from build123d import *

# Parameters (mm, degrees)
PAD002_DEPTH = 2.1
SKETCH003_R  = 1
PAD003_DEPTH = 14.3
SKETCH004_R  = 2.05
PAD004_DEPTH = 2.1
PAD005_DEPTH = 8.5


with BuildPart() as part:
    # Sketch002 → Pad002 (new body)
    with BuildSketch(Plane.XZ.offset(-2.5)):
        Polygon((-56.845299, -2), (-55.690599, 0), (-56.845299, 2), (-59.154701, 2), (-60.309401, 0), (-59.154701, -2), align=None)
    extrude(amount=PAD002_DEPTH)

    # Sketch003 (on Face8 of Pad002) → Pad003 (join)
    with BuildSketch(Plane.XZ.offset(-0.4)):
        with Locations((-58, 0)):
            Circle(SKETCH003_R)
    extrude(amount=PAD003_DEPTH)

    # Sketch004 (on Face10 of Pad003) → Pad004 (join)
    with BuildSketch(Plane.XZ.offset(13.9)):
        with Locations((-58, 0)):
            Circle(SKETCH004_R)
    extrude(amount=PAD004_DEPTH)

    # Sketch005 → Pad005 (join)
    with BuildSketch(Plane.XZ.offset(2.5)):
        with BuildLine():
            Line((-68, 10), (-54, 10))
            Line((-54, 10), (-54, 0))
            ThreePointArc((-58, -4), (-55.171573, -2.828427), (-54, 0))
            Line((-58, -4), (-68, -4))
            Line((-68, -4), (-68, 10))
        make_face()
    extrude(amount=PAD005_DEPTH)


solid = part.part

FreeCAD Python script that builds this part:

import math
import FreeCAD as App
import Part
import Sketcher

V = App.Vector
Q = App.Units.Quantity

doc = App.newDocument("Part")
body = doc.addObject("PartDesign::Body", "Body")

# Sketch on XZ plane
sketch1 = body.newObject("Sketcher::SketchObject", "Sketch")
sketch1.AttachmentSupport = (doc.getObject("XZ_Plane"), [""])
sketch1.MapMode = "FlatFace"
sketch1.AttachmentOffset = App.Placement(V(0, 0, -2.5), App.Rotation())
sketch1.addGeometry([
    Part.LineSegment(V(-56.845299, -2, 0), V(-55.690599, 0, 0)),  # 0
    Part.LineSegment(V(-55.690599, 0, 0), V(-56.845299, 2, 0)),  # 1
    Part.LineSegment(V(-56.845299, 2, 0), V(-59.154701, 2, 0)),  # 2
    Part.LineSegment(V(-59.154701, 2, 0), V(-60.309401, 0, 0)),  # 3
    Part.LineSegment(V(-60.309401, 0, 0), V(-59.154701, -2, 0)),  # 4
    Part.LineSegment(V(-59.154701, -2, 0), V(-56.845299, -2, 0)),  # 5
], False)
sketch1.addConstraint([
    Sketcher.Constraint("Coincident", 0, 2, 1, 1),
    Sketcher.Constraint("Coincident", 1, 2, 2, 1),
    Sketcher.Constraint("Coincident", 2, 2, 3, 1),
    Sketcher.Constraint("Coincident", 3, 2, 4, 1),
    Sketcher.Constraint("Coincident", 4, 2, 5, 1),
    Sketcher.Constraint("Coincident", 5, 2, 0, 1),
    Sketcher.Constraint("Horizontal", 2),
    Sketcher.Constraint("Horizontal", 5),
    Sketcher.Constraint("Symmetric", 2, 2, 4, 2, -1),
    Sketcher.Constraint("PointOnObject", 0, 2, -1),
    Sketcher.Constraint("PointOnObject", 3, 2, -1),
    Sketcher.Constraint("Parallel", 0, 3),
    Sketcher.Constraint("Parallel", 1, 4),
    Sketcher.Constraint("Angle", 0, Q("60.000012 deg")),
    Sketcher.Constraint("DistanceY", -1, 1, 1, 2, Q("2 mm")),
    Sketcher.Constraint("DistanceX", 0, 2, -1, 1, Q("55.690599 mm")),
    Sketcher.Constraint("DistanceX", 2, 2, -1, 1, Q("59.154701 mm")),
])
pad1 = body.newObject("PartDesign::Pad", "Pad")
pad1.Profile = sketch1
pad1.Length = 2.1

# Sketch on XZ plane
sketch2 = body.newObject("Sketcher::SketchObject", "Sketch001")
sketch2.AttachmentSupport = (doc.getObject("XZ_Plane"), [""])
sketch2.MapMode = "FlatFace"
sketch2.AttachmentOffset = App.Placement(V(0, 0, -0.4), App.Rotation())
sketch2.addGeometry(Part.Circle(V(-58, 0, 0), V(0, 0, 1), 1), False)
sketch2.addConstraint([
    Sketcher.Constraint("PointOnObject", 0, 3, -1),
    Sketcher.Constraint("Diameter", 0, Q("2 mm")),
    Sketcher.Constraint("DistanceX", 0, 3, -1, 1, Q("58 mm")),
])
pad2 = body.newObject("PartDesign::Pad", "Pad001")
pad2.Profile = sketch2
pad2.Length = 14.3

# Sketch on XZ plane
sketch3 = body.newObject("Sketcher::SketchObject", "Sketch002")
sketch3.AttachmentSupport = (doc.getObject("XZ_Plane"), [""])
sketch3.MapMode = "FlatFace"
sketch3.AttachmentOffset = App.Placement(V(0, 0, 13.9), App.Rotation())
sketch3.addGeometry(Part.Circle(V(-58, 0, 0), V(0, 0, 1), 2.05), False)
sketch3.addConstraint([
    Sketcher.Constraint("PointOnObject", 0, 3, -1),
    Sketcher.Constraint("Diameter", 0, Q("4.1 mm")),
    Sketcher.Constraint("DistanceX", 0, 3, -1, 1, Q("58 mm")),
])
pad3 = body.newObject("PartDesign::Pad", "Pad002")
pad3.Profile = sketch3
pad3.Length = 2.1

# Sketch on XZ plane
sketch4 = body.newObject("Sketcher::SketchObject", "Sketch003")
sketch4.AttachmentSupport = (doc.getObject("XZ_Plane"), [""])
sketch4.MapMode = "FlatFace"
sketch4.AttachmentOffset = App.Placement(V(0, 0, 2.5), App.Rotation())
sketch4.addGeometry([
    Part.LineSegment(V(-54, 10, 0), V(-68, 10, 0)),  # 0
    Part.LineSegment(V(-68, 10, 0), V(-68, -4, 0)),  # 1
    Part.LineSegment(V(-68, -4, 0), V(-58, -4, 0)),  # 2
    Part.ArcOfCircle(Part.Circle(V(-58, 0, 0), V(0, 0, 1), 4), math.radians(-89.999994), math.radians(-0.000006)),  # 3
    Part.LineSegment(V(-54, 0, 0), V(-54, 10, 0)),  # 4
], False)
sketch4.addConstraint([
    Sketcher.Constraint("Coincident", 0, 2, 1, 1),
    Sketcher.Constraint("Coincident", 1, 2, 2, 1),
    Sketcher.Constraint("Tangent", 2, 2, 3, 1),
    Sketcher.Constraint("Tangent", 3, 2, 4, 1),
    Sketcher.Constraint("Coincident", 4, 2, 0, 1),
    Sketcher.Constraint("Horizontal", 0),
    Sketcher.Constraint("Vertical", 1),
    Sketcher.Constraint("Horizontal", 2),
    Sketcher.Constraint("Vertical", 4),
    Sketcher.Constraint("PointOnObject", 3, 3, -1),
    Sketcher.Constraint("Equal", 0, 1),
    Sketcher.Constraint("Radius", 3, Q("4 mm")),
    Sketcher.Constraint("DistanceX", 0, 2, 0, 1, Q("14 mm")),
    Sketcher.Constraint("DistanceX", 3, 3, -1, 1, Q("58 mm")),
])
pad4 = body.newObject("PartDesign::Pad", "Pad003")
pad4.Profile = sketch4
pad4.Length = 8.5

doc.recompute()
